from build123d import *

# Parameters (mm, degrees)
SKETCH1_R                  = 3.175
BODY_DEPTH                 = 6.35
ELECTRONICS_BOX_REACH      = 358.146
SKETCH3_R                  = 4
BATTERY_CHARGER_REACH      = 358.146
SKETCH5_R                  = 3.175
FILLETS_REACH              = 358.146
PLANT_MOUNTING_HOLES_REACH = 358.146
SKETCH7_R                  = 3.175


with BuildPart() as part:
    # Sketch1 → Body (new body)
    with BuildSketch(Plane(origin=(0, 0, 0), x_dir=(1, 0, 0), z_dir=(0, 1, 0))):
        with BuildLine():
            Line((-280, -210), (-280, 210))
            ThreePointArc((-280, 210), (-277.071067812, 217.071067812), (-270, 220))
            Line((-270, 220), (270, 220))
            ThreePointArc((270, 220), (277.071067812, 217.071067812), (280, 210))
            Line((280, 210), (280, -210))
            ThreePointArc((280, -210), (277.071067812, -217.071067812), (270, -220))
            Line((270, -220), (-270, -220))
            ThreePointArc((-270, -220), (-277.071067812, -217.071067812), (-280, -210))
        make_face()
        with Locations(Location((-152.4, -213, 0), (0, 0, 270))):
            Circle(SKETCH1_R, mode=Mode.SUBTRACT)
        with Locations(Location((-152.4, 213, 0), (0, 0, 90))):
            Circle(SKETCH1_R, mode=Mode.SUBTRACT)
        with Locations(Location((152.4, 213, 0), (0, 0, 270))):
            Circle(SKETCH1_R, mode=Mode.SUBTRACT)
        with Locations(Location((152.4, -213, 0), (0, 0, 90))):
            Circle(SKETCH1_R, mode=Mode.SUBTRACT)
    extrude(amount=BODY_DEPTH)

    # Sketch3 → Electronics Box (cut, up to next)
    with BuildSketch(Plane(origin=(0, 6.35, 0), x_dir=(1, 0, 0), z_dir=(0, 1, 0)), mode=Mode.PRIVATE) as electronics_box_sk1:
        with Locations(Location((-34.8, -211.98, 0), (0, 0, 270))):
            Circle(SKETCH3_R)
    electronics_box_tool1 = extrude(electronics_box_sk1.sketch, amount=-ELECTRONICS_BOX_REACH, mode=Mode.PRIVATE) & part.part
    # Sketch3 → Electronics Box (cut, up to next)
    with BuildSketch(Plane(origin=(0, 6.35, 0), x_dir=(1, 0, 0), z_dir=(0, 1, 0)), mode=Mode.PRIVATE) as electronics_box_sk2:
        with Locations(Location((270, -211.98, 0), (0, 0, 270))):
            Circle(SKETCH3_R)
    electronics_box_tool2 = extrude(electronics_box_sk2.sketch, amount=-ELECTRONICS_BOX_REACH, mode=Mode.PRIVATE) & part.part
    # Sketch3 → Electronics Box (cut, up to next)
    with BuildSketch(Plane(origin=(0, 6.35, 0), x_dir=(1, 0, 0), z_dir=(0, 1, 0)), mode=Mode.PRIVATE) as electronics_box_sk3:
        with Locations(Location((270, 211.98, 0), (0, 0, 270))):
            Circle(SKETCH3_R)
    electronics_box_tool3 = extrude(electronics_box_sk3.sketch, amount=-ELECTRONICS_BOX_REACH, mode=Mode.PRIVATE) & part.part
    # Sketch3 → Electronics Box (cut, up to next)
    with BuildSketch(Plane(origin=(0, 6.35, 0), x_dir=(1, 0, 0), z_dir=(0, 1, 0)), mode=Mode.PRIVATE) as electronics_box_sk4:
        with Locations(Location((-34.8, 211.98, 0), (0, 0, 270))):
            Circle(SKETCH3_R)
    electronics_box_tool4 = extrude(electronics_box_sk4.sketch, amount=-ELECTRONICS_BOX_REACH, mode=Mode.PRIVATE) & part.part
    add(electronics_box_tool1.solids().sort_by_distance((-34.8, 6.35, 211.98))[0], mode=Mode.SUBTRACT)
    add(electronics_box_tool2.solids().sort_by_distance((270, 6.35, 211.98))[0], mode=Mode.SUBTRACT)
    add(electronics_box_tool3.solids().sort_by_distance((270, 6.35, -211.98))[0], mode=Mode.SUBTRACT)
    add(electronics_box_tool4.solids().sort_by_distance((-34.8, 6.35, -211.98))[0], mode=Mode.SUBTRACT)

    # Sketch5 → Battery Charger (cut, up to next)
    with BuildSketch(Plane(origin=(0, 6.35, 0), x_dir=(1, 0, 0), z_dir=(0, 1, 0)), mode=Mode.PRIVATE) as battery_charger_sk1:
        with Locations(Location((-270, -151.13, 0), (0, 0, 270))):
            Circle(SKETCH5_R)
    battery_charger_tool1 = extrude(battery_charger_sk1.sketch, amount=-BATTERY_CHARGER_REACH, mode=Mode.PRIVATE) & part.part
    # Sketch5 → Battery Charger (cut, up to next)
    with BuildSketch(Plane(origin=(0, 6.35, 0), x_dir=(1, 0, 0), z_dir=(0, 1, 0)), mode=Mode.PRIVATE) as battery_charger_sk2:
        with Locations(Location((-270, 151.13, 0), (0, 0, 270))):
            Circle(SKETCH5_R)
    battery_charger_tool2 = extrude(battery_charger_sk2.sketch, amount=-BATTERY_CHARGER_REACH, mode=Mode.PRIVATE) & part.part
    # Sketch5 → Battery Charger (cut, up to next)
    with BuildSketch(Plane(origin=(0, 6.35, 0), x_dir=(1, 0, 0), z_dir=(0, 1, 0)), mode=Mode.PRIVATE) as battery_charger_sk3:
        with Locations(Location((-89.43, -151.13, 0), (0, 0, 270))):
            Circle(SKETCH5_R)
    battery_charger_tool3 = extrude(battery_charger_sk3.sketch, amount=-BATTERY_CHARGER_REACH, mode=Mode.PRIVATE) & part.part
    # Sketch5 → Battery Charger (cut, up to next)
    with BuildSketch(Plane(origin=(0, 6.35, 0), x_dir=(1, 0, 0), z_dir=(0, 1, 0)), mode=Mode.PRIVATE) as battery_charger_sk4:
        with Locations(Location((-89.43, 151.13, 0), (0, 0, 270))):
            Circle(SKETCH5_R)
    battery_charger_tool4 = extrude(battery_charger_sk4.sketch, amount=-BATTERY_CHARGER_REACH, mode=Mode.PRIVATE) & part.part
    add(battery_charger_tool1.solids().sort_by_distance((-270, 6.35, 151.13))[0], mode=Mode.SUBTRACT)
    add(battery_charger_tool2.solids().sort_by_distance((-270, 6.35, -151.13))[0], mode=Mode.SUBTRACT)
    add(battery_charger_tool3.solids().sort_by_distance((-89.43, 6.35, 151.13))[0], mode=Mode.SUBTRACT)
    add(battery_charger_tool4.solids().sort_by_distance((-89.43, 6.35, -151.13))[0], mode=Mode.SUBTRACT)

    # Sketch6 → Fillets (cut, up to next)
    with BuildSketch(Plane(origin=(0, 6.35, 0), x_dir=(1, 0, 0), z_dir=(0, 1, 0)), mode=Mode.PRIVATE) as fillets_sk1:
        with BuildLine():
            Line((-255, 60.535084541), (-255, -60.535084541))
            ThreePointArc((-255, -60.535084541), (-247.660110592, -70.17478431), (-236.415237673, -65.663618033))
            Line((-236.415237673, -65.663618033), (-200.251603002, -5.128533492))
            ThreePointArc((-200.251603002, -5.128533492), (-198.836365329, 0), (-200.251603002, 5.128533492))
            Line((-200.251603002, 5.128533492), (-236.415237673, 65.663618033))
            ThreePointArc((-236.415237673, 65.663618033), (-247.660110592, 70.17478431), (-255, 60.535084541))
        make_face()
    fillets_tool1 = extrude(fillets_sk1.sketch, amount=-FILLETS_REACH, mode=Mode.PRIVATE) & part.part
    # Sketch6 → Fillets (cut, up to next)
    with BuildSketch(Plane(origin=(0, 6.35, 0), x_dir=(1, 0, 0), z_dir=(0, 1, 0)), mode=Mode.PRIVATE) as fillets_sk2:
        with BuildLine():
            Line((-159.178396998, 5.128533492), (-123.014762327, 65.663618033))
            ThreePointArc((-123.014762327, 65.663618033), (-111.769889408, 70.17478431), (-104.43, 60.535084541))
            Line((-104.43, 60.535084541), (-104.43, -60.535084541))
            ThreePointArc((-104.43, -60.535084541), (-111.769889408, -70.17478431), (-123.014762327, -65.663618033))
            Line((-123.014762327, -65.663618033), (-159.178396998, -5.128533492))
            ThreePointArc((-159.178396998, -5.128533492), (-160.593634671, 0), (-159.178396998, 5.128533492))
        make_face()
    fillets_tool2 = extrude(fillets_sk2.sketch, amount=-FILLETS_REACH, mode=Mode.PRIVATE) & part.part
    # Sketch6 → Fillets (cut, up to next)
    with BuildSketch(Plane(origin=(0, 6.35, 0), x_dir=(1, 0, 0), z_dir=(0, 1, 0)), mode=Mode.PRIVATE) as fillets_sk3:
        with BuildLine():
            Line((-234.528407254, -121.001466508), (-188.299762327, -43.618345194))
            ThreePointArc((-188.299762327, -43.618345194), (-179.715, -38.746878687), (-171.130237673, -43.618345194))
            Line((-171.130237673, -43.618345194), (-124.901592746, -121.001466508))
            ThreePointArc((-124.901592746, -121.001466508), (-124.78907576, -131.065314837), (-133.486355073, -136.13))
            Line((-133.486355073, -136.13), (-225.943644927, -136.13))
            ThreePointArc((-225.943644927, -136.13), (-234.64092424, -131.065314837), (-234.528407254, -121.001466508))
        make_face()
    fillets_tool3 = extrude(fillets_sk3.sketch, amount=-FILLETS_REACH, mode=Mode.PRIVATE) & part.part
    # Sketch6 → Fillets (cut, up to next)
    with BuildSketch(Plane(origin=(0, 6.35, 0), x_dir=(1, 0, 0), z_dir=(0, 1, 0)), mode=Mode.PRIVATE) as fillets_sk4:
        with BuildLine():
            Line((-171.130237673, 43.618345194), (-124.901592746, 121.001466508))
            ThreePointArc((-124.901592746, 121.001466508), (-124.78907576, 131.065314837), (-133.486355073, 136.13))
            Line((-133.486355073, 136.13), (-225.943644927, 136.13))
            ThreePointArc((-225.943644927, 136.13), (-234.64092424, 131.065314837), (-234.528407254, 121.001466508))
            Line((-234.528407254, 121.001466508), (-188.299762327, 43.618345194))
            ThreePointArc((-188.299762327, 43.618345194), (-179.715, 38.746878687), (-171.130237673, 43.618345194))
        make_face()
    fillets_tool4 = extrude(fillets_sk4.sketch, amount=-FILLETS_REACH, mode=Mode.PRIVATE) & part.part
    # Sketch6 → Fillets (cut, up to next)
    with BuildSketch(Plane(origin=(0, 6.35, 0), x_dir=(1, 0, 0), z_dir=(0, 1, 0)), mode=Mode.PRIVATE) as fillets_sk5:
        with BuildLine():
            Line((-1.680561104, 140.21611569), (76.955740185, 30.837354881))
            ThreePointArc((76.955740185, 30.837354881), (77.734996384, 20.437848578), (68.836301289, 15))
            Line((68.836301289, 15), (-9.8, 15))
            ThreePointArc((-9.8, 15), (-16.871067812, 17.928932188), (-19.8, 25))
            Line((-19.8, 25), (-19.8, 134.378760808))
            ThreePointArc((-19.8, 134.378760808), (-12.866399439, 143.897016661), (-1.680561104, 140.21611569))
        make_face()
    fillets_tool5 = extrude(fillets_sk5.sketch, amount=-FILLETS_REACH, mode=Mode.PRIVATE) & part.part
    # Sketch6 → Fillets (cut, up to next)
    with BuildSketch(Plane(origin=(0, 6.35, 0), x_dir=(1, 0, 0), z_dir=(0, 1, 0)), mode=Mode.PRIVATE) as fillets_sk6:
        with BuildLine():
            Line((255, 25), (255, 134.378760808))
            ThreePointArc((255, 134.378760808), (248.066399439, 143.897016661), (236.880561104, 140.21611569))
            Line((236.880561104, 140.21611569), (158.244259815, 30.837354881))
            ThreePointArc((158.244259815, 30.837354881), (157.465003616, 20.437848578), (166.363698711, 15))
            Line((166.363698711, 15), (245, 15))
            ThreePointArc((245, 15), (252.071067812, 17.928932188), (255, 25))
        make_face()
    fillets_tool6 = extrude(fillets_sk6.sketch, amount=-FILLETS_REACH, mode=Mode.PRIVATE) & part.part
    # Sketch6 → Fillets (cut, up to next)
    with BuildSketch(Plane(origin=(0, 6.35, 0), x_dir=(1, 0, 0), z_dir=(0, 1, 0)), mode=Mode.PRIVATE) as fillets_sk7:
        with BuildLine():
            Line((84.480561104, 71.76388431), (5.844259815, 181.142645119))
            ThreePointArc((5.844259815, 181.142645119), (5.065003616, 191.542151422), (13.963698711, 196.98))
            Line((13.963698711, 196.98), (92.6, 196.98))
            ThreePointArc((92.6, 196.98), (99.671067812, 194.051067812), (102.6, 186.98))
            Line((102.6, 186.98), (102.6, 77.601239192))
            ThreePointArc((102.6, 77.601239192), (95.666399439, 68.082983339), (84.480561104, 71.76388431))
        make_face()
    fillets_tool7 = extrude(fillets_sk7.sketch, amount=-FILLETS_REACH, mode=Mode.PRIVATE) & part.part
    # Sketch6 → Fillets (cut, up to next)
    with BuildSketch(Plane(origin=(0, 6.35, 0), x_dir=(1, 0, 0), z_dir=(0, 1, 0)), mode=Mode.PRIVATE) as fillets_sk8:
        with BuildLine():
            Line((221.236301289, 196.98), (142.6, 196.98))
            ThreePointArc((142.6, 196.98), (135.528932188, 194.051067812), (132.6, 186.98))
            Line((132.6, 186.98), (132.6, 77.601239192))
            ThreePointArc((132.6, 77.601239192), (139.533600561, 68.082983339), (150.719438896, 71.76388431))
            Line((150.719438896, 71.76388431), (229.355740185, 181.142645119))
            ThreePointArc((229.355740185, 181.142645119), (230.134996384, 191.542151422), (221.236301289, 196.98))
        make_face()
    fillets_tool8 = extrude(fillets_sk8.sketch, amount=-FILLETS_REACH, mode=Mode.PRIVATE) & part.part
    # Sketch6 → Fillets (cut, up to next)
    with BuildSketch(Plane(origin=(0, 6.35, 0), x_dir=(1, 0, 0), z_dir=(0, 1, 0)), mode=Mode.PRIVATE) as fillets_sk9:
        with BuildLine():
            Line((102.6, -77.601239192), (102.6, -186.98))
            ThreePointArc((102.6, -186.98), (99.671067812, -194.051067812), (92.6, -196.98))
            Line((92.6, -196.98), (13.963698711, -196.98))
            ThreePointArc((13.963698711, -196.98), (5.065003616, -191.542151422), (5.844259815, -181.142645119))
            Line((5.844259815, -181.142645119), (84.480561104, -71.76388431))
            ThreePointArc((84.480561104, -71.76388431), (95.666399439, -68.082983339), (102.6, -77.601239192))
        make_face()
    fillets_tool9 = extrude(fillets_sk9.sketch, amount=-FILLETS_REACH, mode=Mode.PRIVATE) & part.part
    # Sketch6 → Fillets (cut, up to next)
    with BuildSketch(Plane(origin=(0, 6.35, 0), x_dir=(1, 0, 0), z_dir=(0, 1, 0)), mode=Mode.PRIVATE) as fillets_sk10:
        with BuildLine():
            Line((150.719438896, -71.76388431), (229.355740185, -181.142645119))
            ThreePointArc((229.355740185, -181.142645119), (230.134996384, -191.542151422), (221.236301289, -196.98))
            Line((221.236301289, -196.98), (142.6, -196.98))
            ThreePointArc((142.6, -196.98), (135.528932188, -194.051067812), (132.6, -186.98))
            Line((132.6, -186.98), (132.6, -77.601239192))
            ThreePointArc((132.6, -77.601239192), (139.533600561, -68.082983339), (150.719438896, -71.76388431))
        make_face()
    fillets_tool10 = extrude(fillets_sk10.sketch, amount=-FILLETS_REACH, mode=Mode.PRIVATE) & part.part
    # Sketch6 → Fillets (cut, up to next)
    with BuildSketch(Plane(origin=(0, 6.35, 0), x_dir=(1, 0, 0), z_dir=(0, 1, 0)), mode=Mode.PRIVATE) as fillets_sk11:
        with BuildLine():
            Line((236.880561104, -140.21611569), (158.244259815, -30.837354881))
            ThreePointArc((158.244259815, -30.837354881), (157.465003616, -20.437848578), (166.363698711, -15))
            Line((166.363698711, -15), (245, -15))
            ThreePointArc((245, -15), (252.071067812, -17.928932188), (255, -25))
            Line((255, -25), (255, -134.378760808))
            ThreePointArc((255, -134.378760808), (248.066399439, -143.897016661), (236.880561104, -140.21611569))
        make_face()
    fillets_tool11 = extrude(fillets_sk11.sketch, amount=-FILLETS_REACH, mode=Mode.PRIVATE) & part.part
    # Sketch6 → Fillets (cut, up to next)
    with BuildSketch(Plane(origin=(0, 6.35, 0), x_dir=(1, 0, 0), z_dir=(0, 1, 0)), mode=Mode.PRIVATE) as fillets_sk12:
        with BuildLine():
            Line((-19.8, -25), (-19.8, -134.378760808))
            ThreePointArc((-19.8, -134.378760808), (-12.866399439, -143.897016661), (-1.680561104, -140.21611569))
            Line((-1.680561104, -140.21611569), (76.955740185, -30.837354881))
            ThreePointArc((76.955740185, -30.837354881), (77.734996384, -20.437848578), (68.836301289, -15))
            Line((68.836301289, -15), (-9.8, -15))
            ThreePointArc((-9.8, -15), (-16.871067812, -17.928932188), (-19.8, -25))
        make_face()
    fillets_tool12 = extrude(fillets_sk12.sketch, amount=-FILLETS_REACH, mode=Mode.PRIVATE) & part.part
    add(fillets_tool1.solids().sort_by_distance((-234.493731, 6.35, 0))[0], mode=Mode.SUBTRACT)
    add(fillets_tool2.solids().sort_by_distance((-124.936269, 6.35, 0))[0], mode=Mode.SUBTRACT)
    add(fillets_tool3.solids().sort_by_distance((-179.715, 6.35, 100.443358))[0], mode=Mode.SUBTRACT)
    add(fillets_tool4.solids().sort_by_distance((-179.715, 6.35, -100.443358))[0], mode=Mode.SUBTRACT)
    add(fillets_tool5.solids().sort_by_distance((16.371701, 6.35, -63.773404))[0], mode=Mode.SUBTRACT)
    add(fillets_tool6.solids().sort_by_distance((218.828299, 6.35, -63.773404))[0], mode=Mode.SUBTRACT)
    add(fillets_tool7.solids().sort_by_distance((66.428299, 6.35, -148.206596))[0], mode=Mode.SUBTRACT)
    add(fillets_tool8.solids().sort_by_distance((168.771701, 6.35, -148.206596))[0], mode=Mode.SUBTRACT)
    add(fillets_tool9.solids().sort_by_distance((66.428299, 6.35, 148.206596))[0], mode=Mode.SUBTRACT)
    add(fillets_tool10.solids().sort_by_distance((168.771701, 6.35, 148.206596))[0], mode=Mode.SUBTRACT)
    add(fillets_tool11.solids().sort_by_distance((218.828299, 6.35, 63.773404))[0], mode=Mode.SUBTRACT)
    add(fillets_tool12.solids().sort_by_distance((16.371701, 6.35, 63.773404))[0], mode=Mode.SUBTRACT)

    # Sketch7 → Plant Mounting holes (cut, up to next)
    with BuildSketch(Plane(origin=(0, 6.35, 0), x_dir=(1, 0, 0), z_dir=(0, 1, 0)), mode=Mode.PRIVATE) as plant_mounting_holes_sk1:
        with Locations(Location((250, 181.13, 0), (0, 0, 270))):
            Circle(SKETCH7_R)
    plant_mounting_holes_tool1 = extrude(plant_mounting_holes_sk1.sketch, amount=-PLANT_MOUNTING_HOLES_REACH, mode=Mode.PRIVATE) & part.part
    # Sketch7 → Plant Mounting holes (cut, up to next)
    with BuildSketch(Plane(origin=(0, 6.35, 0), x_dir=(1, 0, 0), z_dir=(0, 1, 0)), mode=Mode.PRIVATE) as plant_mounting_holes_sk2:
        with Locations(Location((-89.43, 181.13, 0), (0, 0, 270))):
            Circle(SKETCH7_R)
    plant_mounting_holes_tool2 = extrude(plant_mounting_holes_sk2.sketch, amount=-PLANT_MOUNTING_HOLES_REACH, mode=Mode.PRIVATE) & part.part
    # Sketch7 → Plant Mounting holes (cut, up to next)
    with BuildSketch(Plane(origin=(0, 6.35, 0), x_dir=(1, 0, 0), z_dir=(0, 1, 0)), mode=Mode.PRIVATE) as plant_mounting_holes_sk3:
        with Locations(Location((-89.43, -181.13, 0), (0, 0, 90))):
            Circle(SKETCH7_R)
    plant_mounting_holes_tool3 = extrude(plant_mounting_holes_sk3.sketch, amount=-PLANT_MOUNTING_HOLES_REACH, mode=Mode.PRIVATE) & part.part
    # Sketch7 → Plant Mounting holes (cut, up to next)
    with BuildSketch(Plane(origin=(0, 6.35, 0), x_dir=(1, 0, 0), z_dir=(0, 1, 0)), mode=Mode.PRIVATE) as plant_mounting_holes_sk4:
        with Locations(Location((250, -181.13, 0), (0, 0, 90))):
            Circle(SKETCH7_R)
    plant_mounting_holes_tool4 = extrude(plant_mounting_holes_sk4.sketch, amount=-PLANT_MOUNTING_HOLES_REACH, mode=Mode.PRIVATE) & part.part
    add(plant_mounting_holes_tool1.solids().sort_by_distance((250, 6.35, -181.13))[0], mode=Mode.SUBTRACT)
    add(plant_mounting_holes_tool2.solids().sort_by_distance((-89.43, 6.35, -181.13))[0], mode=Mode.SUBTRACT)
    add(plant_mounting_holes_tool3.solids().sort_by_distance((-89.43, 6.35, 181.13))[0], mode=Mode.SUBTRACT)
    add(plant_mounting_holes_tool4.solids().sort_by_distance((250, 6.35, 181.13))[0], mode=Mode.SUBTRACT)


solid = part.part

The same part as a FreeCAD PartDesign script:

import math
import FreeCAD as App
import Part
import Sketcher

V = App.Vector

doc = App.newDocument("Part")
body = doc.addObject("PartDesign::Body", "Body")

sketch1 = body.newObject("Sketcher::SketchObject", "Sketch")
sketch1.AttachmentSupport = (doc.getObject("XZ_Plane"), [""])
sketch1.MapMode = "FlatFace"
sketch1.addGeometry([
    Part.LineSegment(V(-280, -210, 0), V(-280, 210, 0)),
    Part.ArcOfCircle(Part.Circle(V(-270, 210, 0), V(0, 0, 1), 10), math.radians(90), math.radians(180)),
    Part.LineSegment(V(-270, 220, 0), V(270, 220, 0)),
    Part.ArcOfCircle(Part.Circle(V(270, 210, 0), V(0, 0, 1), 10), math.radians(0), math.radians(90)),
    Part.LineSegment(V(280, 210, 0), V(280, -210, 0)),
    Part.ArcOfCircle(Part.Circle(V(270, -210, 0), V(0, 0, 1), 10), math.radians(-90), math.radians(0)),
    Part.LineSegment(V(270, -220, 0), V(-270, -220, 0)),
    Part.ArcOfCircle(Part.Circle(V(-270, -210, 0), V(0, 0, 1), 10), math.radians(180), math.radians(270)),
    Part.Circle(V(152.4, 213, 0), V(0, 0, 1), 3.175),
    Part.Circle(V(-152.4, 213, 0), V(0, 0, 1), 3.175),
    Part.Circle(V(152.4, -213, 0), V(0, 0, 1), 3.175),
    Part.Circle(V(-152.4, -213, 0), V(0, 0, 1), 3.175),
], False)
sketch1.addConstraint([
    Sketcher.Constraint("Tangent", 0, 2, 1, 2),
    Sketcher.Constraint("Tangent", 1, 1, 2, 1),
    Sketcher.Constraint("Tangent", 2, 2, 3, 2),
    Sketcher.Constraint("Tangent", 3, 1, 4, 1),
    Sketcher.Constraint("Tangent", 4, 2, 5, 2),
    Sketcher.Constraint("Tangent", 5, 1, 6, 1),
    Sketcher.Constraint("Tangent", 6, 2, 7, 2),
    Sketcher.Constraint("Tangent", 7, 1, 0, 1),
    Sketcher.Constraint("Vertical", 0),
    Sketcher.Constraint("Horizontal", 2),
    Sketcher.Constraint("Vertical", 4),
    Sketcher.Constraint("Horizontal", 6),
    Sketcher.Constraint("Equal", 1, 3),
    Sketcher.Constraint("Equal", 3, 5),
    Sketcher.Constraint("Equal", 5, 7),
    Sketcher.Constraint("Equal", 8, 9),
    Sketcher.Constraint("Equal", 9, 10),
    Sketcher.Constraint("Equal", 10, 11),
    Sketcher.Constraint("Symmetric", 1, 3, 5, 3, -1, 1),
    Sketcher.Constraint("Symmetric", 9, 3, 10, 3, -1, 1),
    Sketcher.Constraint("Symmetric", 8, 3, 11, 3, -1, 1),
    Sketcher.Constraint("Symmetric", 8, 3, 9, 3, -2),
    Sketcher.Constraint("Radius", 1, 10.0),
    Sketcher.Constraint("Diameter", 8, 6.35),
    Sketcher.Constraint("DistanceX", 2, 1, 2, 2, 540.0),
    Sketcher.Constraint("DistanceY", 0, 1, 0, 2, 420.0),
    Sketcher.Constraint("DistanceY", -1, 1, 8, 3, 213.0),
    Sketcher.Constraint("DistanceX", -1, 1, 8, 3, 152.4),
])
pad1 = body.newObject("PartDesign::Pad", "Pad")
pad1.Profile = sketch1
pad1.Length = 6.35
pad1.Reversed = True

sketch2 = body.newObject("Sketcher::SketchObject", "Sketch001")
sketch2.AttachmentSupport = (doc.getObject("XZ_Plane"), [""])
sketch2.MapMode = "FlatFace"
sketch2.AttachmentOffset = App.Placement(V(0, 0, -6.35), App.Rotation())
sketch2.addGeometry(Part.Circle(V(-34.8, 211.98, 0), V(0, 0, 1), 4), False)
sketch2.addConstraint([
    Sketcher.Constraint("Diameter", 0, 8.0),
    Sketcher.Constraint("DistanceX", 0, 3, -1, 1, 34.8),
    Sketcher.Constraint("DistanceY", -1, 1, 0, 3, 211.98),
])
pocket1 = body.newObject("PartDesign::Pocket", "Pocket")
pocket1.Profile = sketch2
pocket1.Type = "UpToFirst"
pocket1.Reversed = True

sketch3 = body.newObject("Sketcher::SketchObject", "Sketch002")
sketch3.AttachmentSupport = (doc.getObject("XZ_Plane"), [""])
sketch3.MapMode = "FlatFace"
sketch3.AttachmentOffset = App.Placement(V(0, 0, -6.35), App.Rotation())
sketch3.addGeometry(Part.Circle(V(270, 211.98, 0), V(0, 0, 1), 4), False)
sketch3.addConstraint([
    Sketcher.Constraint("Diameter", 0, 8.0),
    Sketcher.Constraint("DistanceX", -1, 1, 0, 3, 270.0),
    Sketcher.Constraint("DistanceY", -1, 1, 0, 3, 211.98),
])
pocket2 = body.newObject("PartDesign::Pocket", "Pocket001")
pocket2.Profile = sketch3
pocket2.Type = "UpToFirst"
pocket2.Reversed = True

sketch4 = body.newObject("Sketcher::SketchObject", "Sketch003")
sketch4.AttachmentSupport = (doc.getObject("XZ_Plane"), [""])
sketch4.MapMode = "FlatFace"
sketch4.AttachmentOffset = App.Placement(V(0, 0, -6.35), App.Rotation())
sketch4.addGeometry(Part.Circle(V(270, -211.98, 0), V(0, 0, 1), 4), False)
sketch4.addConstraint([
    Sketcher.Constraint("Diameter", 0, 8.0),
    Sketcher.Constraint("DistanceX", -1, 1, 0, 3, 270.0),
    Sketcher.Constraint("DistanceY", 0, 3, -1, 1, 211.98),
])
pocket3 = body.newObject("PartDesign::Pocket", "Pocket002")
pocket3.Profile = sketch4
pocket3.Type = "UpToFirst"
pocket3.Reversed = True

sketch5 = body.newObject("Sketcher::SketchObject", "Sketch004")
sketch5.AttachmentSupport = (doc.getObject("XZ_Plane"), [""])
sketch5.MapMode = "FlatFace"
sketch5.AttachmentOffset = App.Placement(V(0, 0, -6.35), App.Rotation())
sketch5.addGeometry(Part.Circle(V(-34.8, -211.98, 0), V(0, 0, 1), 4), False)
sketch5.addConstraint([
    Sketcher.Constraint("Diameter", 0, 8.0),
    Sketcher.Constraint("DistanceX", 0, 3, -1, 1, 34.8),
    Sketcher.Constraint("DistanceY", 0, 3, -1, 1, 211.98),
])
pocket4 = body.newObject("PartDesign::Pocket", "Pocket003")
pocket4.Profile = sketch5
pocket4.Type = "UpToFirst"
pocket4.Reversed = True

sketch6 = body.newObject("Sketcher::SketchObject", "Sketch005")
sketch6.AttachmentSupport = (doc.getObject("XZ_Plane"), [""])
sketch6.MapMode = "FlatFace"
sketch6.AttachmentOffset = App.Placement(V(0, 0, -6.35), App.Rotation())
sketch6.addGeometry(Part.Circle(V(-270, 151.13, 0), V(0, 0, 1), 3.175), False)
sketch6.addConstraint([
    Sketcher.Constraint("Diameter", 0, 6.35),
    Sketcher.Constraint("DistanceX", 0, 3, -1, 1, 270.0),
    Sketcher.Constraint("DistanceY", -1, 1, 0, 3, 151.13),
])
pocket5 = body.newObject("PartDesign::Pocket", "Pocket004")
pocket5.Profile = sketch6
pocket5.Type = "UpToFirst"
pocket5.Reversed = True

sketch7 = body.newObject("Sketcher::SketchObject", "Sketch006")
sketch7.AttachmentSupport = (doc.getObject("XZ_Plane"), [""])
sketch7.MapMode = "FlatFace"
sketch7.AttachmentOffset = App.Placement(V(0, 0, -6.35), App.Rotation())
sketch7.addGeometry(Part.Circle(V(-270, -151.13, 0), V(0, 0, 1), 3.175), False)
sketch7.addConstraint([
    Sketcher.Constraint("Diameter", 0, 6.35),
    Sketcher.Constraint("DistanceX", 0, 3, -1, 1, 270.0),
    Sketcher.Constraint("DistanceY", 0, 3, -1, 1, 151.13),
])
pocket6 = body.newObject("PartDesign::Pocket", "Pocket005")
pocket6.Profile = sketch7
pocket6.Type = "UpToFirst"
pocket6.Reversed = True

sketch8 = body.newObject("Sketcher::SketchObject", "Sketch007")
sketch8.AttachmentSupport = (doc.getObject("XZ_Plane"), [""])
sketch8.MapMode = "FlatFace"
sketch8.AttachmentOffset = App.Placement(V(0, 0, -6.35), App.Rotation())
sketch8.addGeometry(Part.Circle(V(-89.43, 151.13, 0), V(0, 0, 1), 3.175), False)
sketch8.addConstraint([
    Sketcher.Constraint("Diameter", 0, 6.35),
    Sketcher.Constraint("DistanceX", 0, 3, -1, 1, 89.43),
    Sketcher.Constraint("DistanceY", -1, 1, 0, 3, 151.13),
])
pocket7 = body.newObject("PartDesign::Pocket", "Pocket006")
pocket7.Profile = sketch8
pocket7.Type = "UpToFirst"
pocket7.Reversed = True

sketch9 = body.newObject("Sketcher::SketchObject", "Sketch008")
sketch9.AttachmentSupport = (doc.getObject("XZ_Plane"), [""])
sketch9.MapMode = "FlatFace"
sketch9.AttachmentOffset = App.Placement(V(0, 0, -6.35), App.Rotation())
sketch9.addGeometry(Part.Circle(V(-89.43, -151.13, 0), V(0, 0, 1), 3.175), False)
sketch9.addConstraint([
    Sketcher.Constraint("Diameter", 0, 6.35),
    Sketcher.Constraint("DistanceX", 0, 3, -1, 1, 89.43),
    Sketcher.Constraint("DistanceY", 0, 3, -1, 1, 151.13),
])
pocket8 = body.newObject("PartDesign::Pocket", "Pocket007")
pocket8.Profile = sketch9
pocket8.Type = "UpToFirst"
pocket8.Reversed = True

sketch10 = body.newObject("Sketcher::SketchObject", "Sketch009")
sketch10.AttachmentSupport = (doc.getObject("XZ_Plane"), [""])
sketch10.MapMode = "FlatFace"
sketch10.AttachmentOffset = App.Placement(V(0, 0, -6.35), App.Rotation())
sketch10.addGeometry([
    Part.LineSegment(V(-255, -60.535085, 0), V(-255, 60.535085, 0)),
    Part.ArcOfCircle(Part.Circle(V(-245, 60.535085, 0), V(0, 0, 1), 10), math.radians(30.854078), math.radians(180)),
    Part.LineSegment(V(-236.415238, 65.663618, 0), V(-200.251603, 5.128533, 0)),
    Part.ArcOfCircle(Part.Circle(V(-208.836365, 0, 0), V(0, 0, 1), 10), math.radians(-30.854078), math.radians(30.854078)),
    Part.LineSegment(V(-200.251603, -5.128533, 0), V(-236.415238, -65.663618, 0)),
    Part.ArcOfCircle(Part.Circle(V(-245, -60.535085, 0), V(0, 0, 1), 10), math.radians(180), math.radians(329.145922)),
], False)
sketch10.addConstraint([
    Sketcher.Constraint("Tangent", 0, 2, 1, 2),
    Sketcher.Constraint("Tangent", 1, 1, 2, 1),
    Sketcher.Constraint("Tangent", 2, 2, 3, 2),
    Sketcher.Constraint("Tangent", 3, 1, 4, 1),
    Sketcher.Constraint("Tangent", 4, 2, 5, 2),
    Sketcher.Constraint("Tangent", 5, 1, 0, 1),
    Sketcher.Constraint("Vertical", 0),
    Sketcher.Constraint("Equal", 1, 3),
    Sketcher.Constraint("Equal", 3, 5),
    Sketcher.Constraint("Symmetric", 2, 2, 3, 1, -1),
    Sketcher.Constraint("Radius", 1, 10.0),
    Sketcher.Constraint("DistanceX", 1, 3, -1, 1, 245.0),
    Sketcher.Constraint("DistanceY", 0, 1, 0, 2, 121.070169),
    Sketcher.Constraint("DistanceY", -1, 1, 1, 1, 65.663618),
])
pocket9 = body.newObject("PartDesign::Pocket", "Pocket008")
pocket9.Profile = sketch10
pocket9.Type = "UpToFirst"
pocket9.Reversed = True

sketch11 = body.newObject("Sketcher::SketchObject", "Sketch010")
sketch11.AttachmentSupport = (doc.getObject("XZ_Plane"), [""])
sketch11.MapMode = "FlatFace"
sketch11.AttachmentOffset = App.Placement(V(0, 0, -6.35), App.Rotation())
sketch11.addGeometry([
    Part.LineSegment(V(-123.014762, -65.663618, 0), V(-159.178397, -5.128533, 0)),
    Part.ArcOfCircle(Part.Circle(V(-150.593635, 0, 0), V(0, 0, 1), 10), math.radians(149.145922), math.radians(210.854078)),
    Part.LineSegment(V(-159.178397, 5.128533, 0), V(-123.014762, 65.663618, 0)),
    Part.ArcOfCircle(Part.Circle(V(-114.43, 60.535085, 0), V(0, 0, 1), 10), math.radians(0), math.radians(149.145922)),
    Part.LineSegment(V(-104.43, 60.535085, 0), V(-104.43, -60.535085, 0)),
    Part.ArcOfCircle(Part.Circle(V(-114.43, -60.535085, 0), V(0, 0, 1), 10), math.radians(-149.145922), math.radians(0)),
], False)
sketch11.addConstraint([
    Sketcher.Constraint("Tangent", 0, 2, 1, 2),
    Sketcher.Constraint("Tangent", 1, 1, 2, 1),
    Sketcher.Constraint("Tangent", 2, 2, 3, 2),
    Sketcher.Constraint("Tangent", 3, 1, 4, 1),
    Sketcher.Constraint("Tangent", 4, 2, 5, 2),
    Sketcher.Constraint("Tangent", 5, 1, 0, 1),
    Sketcher.Constraint("Vertical", 4),
    Sketcher.Constraint("Equal", 1, 3),
    Sketcher.Constraint("Equal", 3, 5),
    Sketcher.Constraint("Symmetric", 0, 2, 1, 1, -1),
    Sketcher.Constraint("Radius", 1, 10.0),
    Sketcher.Constraint("DistanceX", 3, 3, -1, 1, 114.43),
    Sketcher.Constraint("DistanceY", 4, 2, 4, 1, 121.070169),
    Sketcher.Constraint("DistanceY", -1, 1, 2, 2, 65.663618),
])
pocket10 = body.newObject("PartDesign::Pocket", "Pocket009")
pocket10.Profile = sketch11
pocket10.Type = "UpToFirst"
pocket10.Reversed = True

sketch12 = body.newObject("Sketcher::SketchObject", "Sketch011")
sketch12.AttachmentSupport = (doc.getObject("XZ_Plane"), [""])
sketch12.MapMode = "FlatFace"
sketch12.AttachmentOffset = App.Placement(V(0, 0, -6.35), App.Rotation())
sketch12.addGeometry([
    Part.LineSegment(V(-188.299762, 43.618345, 0), V(-234.528407, 121.001467, 0)),
    Part.ArcOfCircle(Part.Circle(V(-225.943645, 126.13, 0), V(0, 0, 1), 10), math.radians(90), math.radians(210.854078)),
    Part.LineSegment(V(-225.943645, 136.13, 0), V(-133.486355, 136.13, 0)),
    Part.ArcOfCircle(Part.Circle(V(-133.486355, 126.13, 0), V(0, 0, 1), 10), math.radians(-30.854078), math.radians(90)),
    Part.LineSegment(V(-124.901593, 121.001467, 0), V(-171.130238, 43.618345, 0)),
    Part.ArcOfCircle(Part.Circle(V(-179.715, 48.746879, 0), V(0, 0, 1), 10), math.radians(-149.145922), math.radians(-30.854078)),
], False)
sketch12.addConstraint([
    Sketcher.Constraint("Tangent", 0, 2, 1, 2),
    Sketcher.Constraint("Tangent", 1, 1, 2, 1),
    Sketcher.Constraint("Tangent", 2, 2, 3, 2),
    Sketcher.Constraint("Tangent", 3, 1, 4, 1),
    Sketcher.Constraint("Tangent", 4, 2, 5, 2),
    Sketcher.Constraint("Tangent", 5, 1, 0, 1),
    Sketcher.Constraint("Horizontal", 2),
    Sketcher.Constraint("Equal", 1, 3),
    Sketcher.Constraint("Equal", 3, 5),
    Sketcher.Constraint("Horizontal", 0, 2, 3, 1),
    Sketcher.Constraint("Radius", 1, 10.0),
    Sketcher.Constraint("DistanceY", -1, 1, 1, 3, 126.13),
    Sketcher.Constraint("DistanceX", 5, 3, -1, 1, 179.715),
    Sketcher.Constraint("DistanceX", 2, 1, 2, 2, 92.45729),
    Sketcher.Constraint("DistanceY", -1, 1, 5, 3, 48.746879),
])
pocket11 = body.newObject("PartDesign::Pocket", "Pocket010")
pocket11.Profile = sketch12
pocket11.Type = "UpToFirst"
pocket11.Reversed = True

sketch13 = body.newObject("Sketcher::SketchObject", "Sketch012")
sketch13.AttachmentSupport = (doc.getObject("XZ_Plane"), [""])
sketch13.MapMode = "FlatFace"
sketch13.AttachmentOffset = App.Placement(V(0, 0, -6.35), App.Rotation())
sketch13.addGeometry([
    Part.LineSegment(V(-171.130238, -43.618345, 0), V(-124.901593, -121.001467, 0)),
    Part.ArcOfCircle(Part.Circle(V(-133.486355, -126.13, 0), V(0, 0, 1), 10), math.radians(-90), math.radians(30.854078)),
    Part.LineSegment(V(-133.486355, -136.13, 0), V(-225.943645, -136.13, 0)),
    Part.ArcOfCircle(Part.Circle(V(-225.943645, -126.13, 0), V(0, 0, 1), 10), math.radians(149.145922), math.radians(270)),
    Part.LineSegment(V(-234.528407, -121.001467, 0), V(-188.299762, -43.618345, 0)),
    Part.ArcOfCircle(Part.Circle(V(-179.715, -48.746879, 0), V(0, 0, 1), 10), math.radians(30.854078), math.radians(149.145922)),
], False)
sketch13.addConstraint([
    Sketcher.Constraint("Tangent", 0, 2, 1, 2),
    Sketcher.Constraint("Tangent", 1, 1, 2, 1),
    Sketcher.Constraint("Tangent", 2, 2, 3, 2),
    Sketcher.Constraint("Tangent", 3, 1, 4, 1),
    Sketcher.Constraint("Tangent", 4, 2, 5, 2),
    Sketcher.Constraint("Tangent", 5, 1, 0, 1),
    Sketcher.Constraint("Horizontal", 2),
    Sketcher.Constraint("Equal", 1, 3),
    Sketcher.Constraint("Equal", 3, 5),
    Sketcher.Constraint("Horizontal", 0, 2, 3, 1),
    Sketcher.Constraint("Radius", 1, 10.0),
    Sketcher.Constraint("DistanceY", 1, 3, -1, 1, 126.13),
    Sketcher.Constraint("DistanceX", 5, 3, -1, 1, 179.715),
    Sketcher.Constraint("DistanceX", 2, 2, 2, 1, 92.45729),
    Sketcher.Constraint("DistanceY", 5, 3, -1, 1, 48.746879),
])
pocket12 = body.newObject("PartDesign::Pocket", "Pocket011")
pocket12.Profile = sketch13
pocket12.Type = "UpToFirst"
pocket12.Reversed = True

sketch14 = body.newObject("Sketcher::SketchObject", "Sketch013")
sketch14.AttachmentSupport = (doc.getObject("XZ_Plane"), [""])
sketch14.MapMode = "FlatFace"
sketch14.AttachmentOffset = App.Placement(V(0, 0, -6.35), App.Rotation())
sketch14.addGeometry([
    Part.LineSegment(V(76.95574, -30.837355, 0), V(-1.680561, -140.216116, 0)),
    Part.ArcOfCircle(Part.Circle(V(-9.8, -134.378761, 0), V(0, 0, 1), 10), math.radians(180), math.radians(324.286292)),
    Part.LineSegment(V(-19.8, -134.378761, 0), V(-19.8, -25, 0)),
    Part.ArcOfCircle(Part.Circle(V(-9.8, -25, 0), V(0, 0, 1), 10), math.radians(90), math.radians(180)),
    Part.LineSegment(V(-9.8, -15, 0), V(68.836301, -15, 0)),
    Part.ArcOfCircle(Part.Circle(V(68.836301, -25, 0), V(0, 0, 1), 10), math.radians(-35.713708), math.radians(90)),
], False)
sketch14.addConstraint([
    Sketcher.Constraint("Tangent", 0, 2, 1, 2),
    Sketcher.Constraint("Tangent", 1, 1, 2, 1),
    Sketcher.Constraint("Tangent", 2, 2, 3, 2),
    Sketcher.Constraint("Tangent", 3, 1, 4, 1),
    Sketcher.Constraint("Tangent", 4, 2, 5, 2),
    Sketcher.Constraint("Tangent", 5, 1, 0, 1),
    Sketcher.Constraint("Vertical", 2),
    Sketcher.Constraint("Horizontal", 4),
    Sketcher.Constraint("Equal", 1, 3),
    Sketcher.Constraint("Equal", 3, 5),
    Sketcher.Constraint("Radius", 1, 10.0),
    Sketcher.Constraint("DistanceY", 3, 3, -1, 1, 25.0),
    Sketcher.Constraint("DistanceX", 1, 3, -1, 1, 9.8),
    Sketcher.Constraint("DistanceX", 4, 1, 4, 2, 78.636301),
    Sketcher.Constraint("DistanceY", 2, 1, 2, 2, 109.378761),
])
pocket13 = body.newObject("PartDesign::Pocket", "Pocket012")
pocket13.Profile = sketch14
pocket13.Type = "UpToFirst"
pocket13.Reversed = True

sketch15 = body.newObject("Sketcher::SketchObject", "Sketch014")
sketch15.AttachmentSupport = (doc.getObject("XZ_Plane"), [""])
sketch15.MapMode = "FlatFace"
sketch15.AttachmentOffset = App.Placement(V(0, 0, -6.35), App.Rotation())
sketch15.addGeometry([
    Part.LineSegment(V(255, -25, 0), V(255, -134.378761, 0)),
    Part.ArcOfCircle(Part.Circle(V(245, -134.378761, 0), V(0, 0, 1), 10), math.radians(-144.286292), math.radians(0)),
    Part.LineSegment(V(236.880561, -140.216116, 0), V(158.24426, -30.837355, 0)),
    Part.ArcOfCircle(Part.Circle(V(166.363699, -25, 0), V(0, 0, 1), 10), math.radians(90), math.radians(215.713708)),
    Part.LineSegment(V(166.363699, -15, 0), V(245, -15, 0)),
    Part.ArcOfCircle(Part.Circle(V(245, -25, 0), V(0, 0, 1), 10), math.radians(0), math.radians(90)),
], False)
sketch15.addConstraint([
    Sketcher.Constraint("Tangent", 0, 2, 1, 2),
    Sketcher.Constraint("Tangent", 1, 1, 2, 1),
    Sketcher.Constraint("Tangent", 2, 2, 3, 2),
    Sketcher.Constraint("Tangent", 3, 1, 4, 1),
    Sketcher.Constraint("Tangent", 4, 2, 5, 2),
    Sketcher.Constraint("Tangent", 5, 1, 0, 1),
    Sketcher.Constraint("Vertical", 0),
    Sketcher.Constraint("Horizontal", 4),
    Sketcher.Constraint("Equal", 1, 3),
    Sketcher.Constraint("Equal", 3, 5),
    Sketcher.Constraint("Radius", 1, 10.0),
    Sketcher.Constraint("DistanceX", -1, 1, 1, 3, 245.0),
    Sketcher.Constraint("DistanceY", 3, 3, -1, 1, 25.0),
    Sketcher.Constraint("DistanceX", 4, 1, 4, 2, 78.636301),
    Sketcher.Constraint("DistanceY", 0, 2, 0, 1, 109.378761),
])
pocket14 = body.newObject("PartDesign::Pocket", "Pocket013")
pocket14.Profile = sketch15
pocket14.Type = "UpToFirst"
pocket14.Reversed = True

sketch16 = body.newObject("Sketcher::SketchObject", "Sketch015")
sketch16.AttachmentSupport = (doc.getObject("XZ_Plane"), [""])
sketch16.MapMode = "FlatFace"
sketch16.AttachmentOffset = App.Placement(V(0, 0, -6.35), App.Rotation())
sketch16.addGeometry([
    Part.LineSegment(V(5.84426, -181.142645, 0), V(84.480561, -71.763884, 0)),
    Part.ArcOfCircle(Part.Circle(V(92.6, -77.601239, 0), V(0, 0, 1), 10), math.radians(0), math.radians(144.286292)),
    Part.LineSegment(V(102.6, -77.601239, 0), V(102.6, -186.98, 0)),
    Part.ArcOfCircle(Part.Circle(V(92.6, -186.98, 0), V(0, 0, 1), 10), math.radians(-90), math.radians(0)),
    Part.LineSegment(V(92.6, -196.98, 0), V(13.963699, -196.98, 0)),
    Part.ArcOfCircle(Part.Circle(V(13.963699, -186.98, 0), V(0, 0, 1), 10), math.radians(144.286292), math.radians(270)),
], False)
sketch16.addConstraint([
    Sketcher.Constraint("Tangent", 0, 2, 1, 2),
    Sketcher.Constraint("Tangent", 1, 1, 2, 1),
    Sketcher.Constraint("Tangent", 2, 2, 3, 2),
    Sketcher.Constraint("Tangent", 3, 1, 4, 1),
    Sketcher.Constraint("Tangent", 4, 2, 5, 2),
    Sketcher.Constraint("Tangent", 5, 1, 0, 1),
    Sketcher.Constraint("Vertical", 2),
    Sketcher.Constraint("Horizontal", 4),
    Sketcher.Constraint("Equal", 1, 3),
    Sketcher.Constraint("Equal", 3, 5),
    Sketcher.Constraint("Radius", 1, 10.0),
    Sketcher.Constraint("DistanceX", -1, 1, 1, 3, 92.6),
    Sketcher.Constraint("DistanceY", 3, 3, -1, 1, 186.98),
    Sketcher.Constraint("DistanceX", 4, 2, 4, 1, 78.636301),
    Sketcher.Constraint("DistanceY", 2, 2, 2, 1, 109.378761),
])
pocket15 = body.newObject("PartDesign::Pocket", "Pocket014")
pocket15.Profile = sketch16
pocket15.Type = "UpToFirst"
pocket15.Reversed = True

sketch17 = body.newObject("Sketcher::SketchObject", "Sketch016")
sketch17.AttachmentSupport = (doc.getObject("XZ_Plane"), [""])
sketch17.MapMode = "FlatFace"
sketch17.AttachmentOffset = App.Placement(V(0, 0, -6.35), App.Rotation())
sketch17.addGeometry([
    Part.LineSegment(V(221.236301, -196.98, 0), V(142.6, -196.98, 0)),
    Part.ArcOfCircle(Part.Circle(V(142.6, -186.98, 0), V(0, 0, 1), 10), math.radians(180), math.radians(270)),
    Part.LineSegment(V(132.6, -186.98, 0), V(132.6, -77.601239, 0)),
    Part.ArcOfCircle(Part.Circle(V(142.6, -77.601239, 0), V(0, 0, 1), 10), math.radians(35.713708), math.radians(180)),
    Part.LineSegment(V(150.719439, -71.763884, 0), V(229.35574, -181.142645, 0)),
    Part.ArcOfCircle(Part.Circle(V(221.236301, -186.98, 0), V(0, 0, 1), 10), math.radians(-90), math.radians(35.713708)),
], False)
sketch17.addConstraint([
    Sketcher.Constraint("Tangent", 0, 2, 1, 2),
    Sketcher.Constraint("Tangent", 1, 1, 2, 1),
    Sketcher.Constraint("Tangent", 2, 2, 3, 2),
    Sketcher.Constraint("Tangent", 3, 1, 4, 1),
    Sketcher.Constraint("Tangent", 4, 2, 5, 2),
    Sketcher.Constraint("Tangent", 5, 1, 0, 1),
    Sketcher.Constraint("Horizontal", 0),
    Sketcher.Constraint("Vertical", 2),
    Sketcher.Constraint("Equal", 1, 3),
    Sketcher.Constraint("Equal", 3, 5),
    Sketcher.Constraint("Radius", 1, 10.0),
    Sketcher.Constraint("DistanceX", -1, 1, 1, 3, 142.6),
    Sketcher.Constraint("DistanceY", 1, 3, -1, 1, 186.98),
    Sketcher.Constraint("DistanceX", 0, 2, 0, 1, 78.636301),
    Sketcher.Constraint("DistanceY", 2, 1, 2, 2, 109.378761),
])
pocket16 = body.newObject("PartDesign::Pocket", "Pocket015")
pocket16.Profile = sketch17
pocket16.Type = "UpToFirst"
pocket16.Reversed = True

sketch18 = body.newObject("Sketcher::SketchObject", "Sketch017")
sketch18.AttachmentSupport = (doc.getObject("XZ_Plane"), [""])
sketch18.MapMode = "FlatFace"
sketch18.AttachmentOffset = App.Placement(V(0, 0, -6.35), App.Rotation())
sketch18.addGeometry([
    Part.LineSegment(V(102.6, 186.98, 0), V(102.6, 77.601239, 0)),
    Part.ArcOfCircle(Part.Circle(V(92.6, 77.601239, 0), V(0, 0, 1), 10), math.radians(-144.286292), math.radians(0)),
    Part.LineSegment(V(84.480561, 71.763884, 0), V(5.84426, 181.142645, 0)),
    Part.ArcOfCircle(Part.Circle(V(13.963699, 186.98, 0), V(0, 0, 1), 10), math.radians(90), math.radians(215.713708)),
    Part.LineSegment(V(13.963699, 196.98, 0), V(92.6, 196.98, 0)),
    Part.ArcOfCircle(Part.Circle(V(92.6, 186.98, 0), V(0, 0, 1), 10), math.radians(0), math.radians(90)),
], False)
sketch18.addConstraint([
    Sketcher.Constraint("Tangent", 0, 2, 1, 2),
    Sketcher.Constraint("Tangent", 1, 1, 2, 1),
    Sketcher.Constraint("Tangent", 2, 2, 3, 2),
    Sketcher.Constraint("Tangent", 3, 1, 4, 1),
    Sketcher.Constraint("Tangent", 4, 2, 5, 2),
    Sketcher.Constraint("Tangent", 5, 1, 0, 1),
    Sketcher.Constraint("Vertical", 0),
    Sketcher.Constraint("Horizontal", 4),
    Sketcher.Constraint("Equal", 1, 3),
    Sketcher.Constraint("Equal", 3, 5),
    Sketcher.Constraint("Radius", 1, 10.0),
    Sketcher.Constraint("DistanceX", -1, 1, 1, 3, 92.6),
    Sketcher.Constraint("DistanceY", -1, 1, 3, 3, 186.98),
    Sketcher.Constraint("DistanceX", 4, 1, 4, 2, 78.636301),
    Sketcher.Constraint("DistanceY", 0, 2, 0, 1, 109.378761),
])
pocket17 = body.newObject("PartDesign::Pocket", "Pocket016")
pocket17.Profile = sketch18
pocket17.Type = "UpToFirst"
pocket17.Reversed = True

sketch19 = body.newObject("Sketcher::SketchObject", "Sketch018")
sketch19.AttachmentSupport = (doc.getObject("XZ_Plane"), [""])
sketch19.MapMode = "FlatFace"
sketch19.AttachmentOffset = App.Placement(V(0, 0, -6.35), App.Rotation())
sketch19.addGeometry([
    Part.LineSegment(V(229.35574, 181.142645, 0), V(150.719439, 71.763884, 0)),
    Part.ArcOfCircle(Part.Circle(V(142.6, 77.601239, 0), V(0, 0, 1), 10), math.radians(180), math.radians(324.286292)),
    Part.LineSegment(V(132.6, 77.601239, 0), V(132.6, 186.98, 0)),
    Part.ArcOfCircle(Part.Circle(V(142.6, 186.98, 0), V(0, 0, 1), 10), math.radians(90), math.radians(180)),
    Part.LineSegment(V(142.6, 196.98, 0), V(221.236301, 196.98, 0)),
    Part.ArcOfCircle(Part.Circle(V(221.236301, 186.98, 0), V(0, 0, 1), 10), math.radians(-35.713708), math.radians(90)),
], False)
sketch19.addConstraint([
    Sketcher.Constraint("Tangent", 0, 2, 1, 2),
    Sketcher.Constraint("Tangent", 1, 1, 2, 1),
    Sketcher.Constraint("Tangent", 2, 2, 3, 2),
    Sketcher.Constraint("Tangent", 3, 1, 4, 1),
    Sketcher.Constraint("Tangent", 4, 2, 5, 2),
    Sketcher.Constraint("Tangent", 5, 1, 0, 1),
    Sketcher.Constraint("Vertical", 2),
    Sketcher.Constraint("Horizontal", 4),
    Sketcher.Constraint("Equal", 1, 3),
    Sketcher.Constraint("Equal", 3, 5),
    Sketcher.Constraint("Radius", 1, 10.0),
    Sketcher.Constraint("DistanceX", -1, 1, 1, 3, 142.6),
    Sketcher.Constraint("DistanceY", -1, 1, 3, 3, 186.98),
    Sketcher.Constraint("DistanceX", 4, 1, 4, 2, 78.636301),
    Sketcher.Constraint("DistanceY", 2, 1, 2, 2, 109.378761),
])
pocket18 = body.newObject("PartDesign::Pocket", "Pocket017")
pocket18.Profile = sketch19
pocket18.Type = "UpToFirst"
pocket18.Reversed = True

sketch20 = body.newObject("Sketcher::SketchObject", "Sketch019")
sketch20.AttachmentSupport = (doc.getObject("XZ_Plane"), [""])
sketch20.MapMode = "FlatFace"
sketch20.AttachmentOffset = App.Placement(V(0, 0, -6.35), App.Rotation())
sketch20.addGeometry([
    Part.LineSegment(V(158.24426, 30.837355, 0), V(236.880561, 140.216116, 0)),
    Part.ArcOfCircle(Part.Circle(V(245, 134.378761, 0), V(0, 0, 1), 10), math.radians(0), math.radians(144.286292)),
    Part.LineSegment(V(255, 134.378761, 0), V(255, 25, 0)),
    Part.ArcOfCircle(Part.Circle(V(245, 25, 0), V(0, 0, 1), 10), math.radians(-90), math.radians(0)),
    Part.LineSegment(V(245, 15, 0), V(166.363699, 15, 0)),
    Part.ArcOfCircle(Part.Circle(V(166.363699, 25, 0), V(0, 0, 1), 10), math.radians(144.286292), math.radians(270)),
], False)
sketch20.addConstraint([
    Sketcher.Constraint("Tangent", 0, 2, 1, 2),
    Sketcher.Constraint("Tangent", 1, 1, 2, 1),
    Sketcher.Constraint("Tangent", 2, 2, 3, 2),
    Sketcher.Constraint("Tangent", 3, 1, 4, 1),
    Sketcher.Constraint("Tangent", 4, 2, 5, 2),
    Sketcher.Constraint("Tangent", 5, 1, 0, 1),
    Sketcher.Constraint("Vertical", 2),
    Sketcher.Constraint("Horizontal", 4),
    Sketcher.Constraint("Equal", 1, 3),
    Sketcher.Constraint("Equal", 3, 5),
    Sketcher.Constraint("Radius", 1, 10.0),
    Sketcher.Constraint("DistanceX", -1, 1, 1, 3, 245.0),
    Sketcher.Constraint("DistanceY", -1, 1, 3, 3, 25.0),
    Sketcher.Constraint("DistanceX", 4, 2, 4, 1, 78.636301),
    Sketcher.Constraint("DistanceY", 2, 2, 2, 1, 109.378761),
])
pocket19 = body.newObject("PartDesign::Pocket", "Pocket018")
pocket19.Profile = sketch20
pocket19.Type = "UpToFirst"
pocket19.Reversed = True

sketch21 = body.newObject("Sketcher::SketchObject", "Sketch020")
sketch21.AttachmentSupport = (doc.getObject("XZ_Plane"), [""])
sketch21.MapMode = "FlatFace"
sketch21.AttachmentOffset = App.Placement(V(0, 0, -6.35), App.Rotation())
sketch21.addGeometry([
    Part.LineSegment(V(-19.8, 25, 0), V(-19.8, 134.378761, 0)),
    Part.ArcOfCircle(Part.Circle(V(-9.8, 134.378761, 0), V(0, 0, 1), 10), math.radians(35.713708), math.radians(180)),
    Part.LineSegment(V(-1.680561, 140.216116, 0), V(76.95574, 30.837355, 0)),
    Part.ArcOfCircle(Part.Circle(V(68.836301, 25, 0), V(0, 0, 1), 10), math.radians(-90), math.radians(35.713708)),
    Part.LineSegment(V(68.836301, 15, 0), V(-9.8, 15, 0)),
    Part.ArcOfCircle(Part.Circle(V(-9.8, 25, 0), V(0, 0, 1), 10), math.radians(180), math.radians(270)),
], False)
sketch21.addConstraint([
    Sketcher.Constraint("Tangent", 0, 2, 1, 2),
    Sketcher.Constraint("Tangent", 1, 1, 2, 1),
    Sketcher.Constraint("Tangent", 2, 2, 3, 2),
    Sketcher.Constraint("Tangent", 3, 1, 4, 1),
    Sketcher.Constraint("Tangent", 4, 2, 5, 2),
    Sketcher.Constraint("Tangent", 5, 1, 0, 1),
    Sketcher.Constraint("Vertical", 0),
    Sketcher.Constraint("Horizontal", 4),
    Sketcher.Constraint("Equal", 1, 3),
    Sketcher.Constraint("Equal", 3, 5),
    Sketcher.Constraint("Radius", 1, 10.0),
    Sketcher.Constraint("DistanceY", -1, 1, 3, 3, 25.0),
    Sketcher.Constraint("DistanceX", 1, 3, -1, 1, 9.8),
    Sketcher.Constraint("DistanceX", 4, 2, 4, 1, 78.636301),
    Sketcher.Constraint("DistanceY", 0, 1, 0, 2, 109.378761),
])
pocket20 = body.newObject("PartDesign::Pocket", "Pocket019")
pocket20.Profile = sketch21
pocket20.Type = "UpToFirst"
pocket20.Reversed = True

sketch22 = body.newObject("Sketcher::SketchObject", "Sketch021")
sketch22.AttachmentSupport = (doc.getObject("XZ_Plane"), [""])
sketch22.MapMode = "FlatFace"
sketch22.AttachmentOffset = App.Placement(V(0, 0, -6.35), App.Rotation())
sketch22.addGeometry(Part.Circle(V(250, -181.13, 0), V(0, 0, 1), 3.175), False)
sketch22.addConstraint([
    Sketcher.Constraint("Diameter", 0, 6.35),
    Sketcher.Constraint("DistanceX", -1, 1, 0, 3, 250.0),
    Sketcher.Constraint("DistanceY", 0, 3, -1, 1, 181.13),
])
pocket21 = body.newObject("PartDesign::Pocket", "Pocket020")
pocket21.Profile = sketch22
pocket21.Type = "UpToFirst"
pocket21.Reversed = True

sketch23 = body.newObject("Sketcher::SketchObject", "Sketch022")
sketch23.AttachmentSupport = (doc.getObject("XZ_Plane"), [""])
sketch23.MapMode = "FlatFace"
sketch23.AttachmentOffset = App.Placement(V(0, 0, -6.35), App.Rotation())
sketch23.addGeometry(Part.Circle(V(-89.43, -181.13, 0), V(0, 0, 1), 3.175), False)
sketch23.addConstraint([
    Sketcher.Constraint("Diameter", 0, 6.35),
    Sketcher.Constraint("DistanceX", 0, 3, -1, 1, 89.43),
    Sketcher.Constraint("DistanceY", 0, 3, -1, 1, 181.13),
])
pocket22 = body.newObject("PartDesign::Pocket", "Pocket021")
pocket22.Profile = sketch23
pocket22.Type = "UpToFirst"
pocket22.Reversed = True

sketch24 = body.newObject("Sketcher::SketchObject", "Sketch023")
sketch24.AttachmentSupport = (doc.getObject("XZ_Plane"), [""])
sketch24.MapMode = "FlatFace"
sketch24.AttachmentOffset = App.Placement(V(0, 0, -6.35), App.Rotation())
sketch24.addGeometry(Part.Circle(V(-89.43, 181.13, 0), V(0, 0, 1), 3.175), False)
sketch24.addConstraint([
    Sketcher.Constraint("Diameter", 0, 6.35),
    Sketcher.Constraint("DistanceX", 0, 3, -1, 1, 89.43),
    Sketcher.Constraint("DistanceY", -1, 1, 0, 3, 181.13),
])
pocket23 = body.newObject("PartDesign::Pocket", "Pocket022")
pocket23.Profile = sketch24
pocket23.Type = "UpToFirst"
pocket23.Reversed = True

sketch25 = body.newObject("Sketcher::SketchObject", "Sketch024")
sketch25.AttachmentSupport = (doc.getObject("XZ_Plane"), [""])
sketch25.MapMode = "FlatFace"
sketch25.AttachmentOffset = App.Placement(V(0, 0, -6.35), App.Rotation())
sketch25.addGeometry(Part.Circle(V(250, 181.13, 0), V(0, 0, 1), 3.175), False)
sketch25.addConstraint([
    Sketcher.Constraint("Diameter", 0, 6.35),
    Sketcher.Constraint("DistanceX", -1, 1, 0, 3, 250.0),
    Sketcher.Constraint("DistanceY", -1, 1, 0, 3, 181.13),
])
pocket24 = body.newObject("PartDesign::Pocket", "Pocket023")
pocket24.Profile = sketch25
pocket24.Type = "UpToFirst"
pocket24.Reversed = True

doc.recompute()
